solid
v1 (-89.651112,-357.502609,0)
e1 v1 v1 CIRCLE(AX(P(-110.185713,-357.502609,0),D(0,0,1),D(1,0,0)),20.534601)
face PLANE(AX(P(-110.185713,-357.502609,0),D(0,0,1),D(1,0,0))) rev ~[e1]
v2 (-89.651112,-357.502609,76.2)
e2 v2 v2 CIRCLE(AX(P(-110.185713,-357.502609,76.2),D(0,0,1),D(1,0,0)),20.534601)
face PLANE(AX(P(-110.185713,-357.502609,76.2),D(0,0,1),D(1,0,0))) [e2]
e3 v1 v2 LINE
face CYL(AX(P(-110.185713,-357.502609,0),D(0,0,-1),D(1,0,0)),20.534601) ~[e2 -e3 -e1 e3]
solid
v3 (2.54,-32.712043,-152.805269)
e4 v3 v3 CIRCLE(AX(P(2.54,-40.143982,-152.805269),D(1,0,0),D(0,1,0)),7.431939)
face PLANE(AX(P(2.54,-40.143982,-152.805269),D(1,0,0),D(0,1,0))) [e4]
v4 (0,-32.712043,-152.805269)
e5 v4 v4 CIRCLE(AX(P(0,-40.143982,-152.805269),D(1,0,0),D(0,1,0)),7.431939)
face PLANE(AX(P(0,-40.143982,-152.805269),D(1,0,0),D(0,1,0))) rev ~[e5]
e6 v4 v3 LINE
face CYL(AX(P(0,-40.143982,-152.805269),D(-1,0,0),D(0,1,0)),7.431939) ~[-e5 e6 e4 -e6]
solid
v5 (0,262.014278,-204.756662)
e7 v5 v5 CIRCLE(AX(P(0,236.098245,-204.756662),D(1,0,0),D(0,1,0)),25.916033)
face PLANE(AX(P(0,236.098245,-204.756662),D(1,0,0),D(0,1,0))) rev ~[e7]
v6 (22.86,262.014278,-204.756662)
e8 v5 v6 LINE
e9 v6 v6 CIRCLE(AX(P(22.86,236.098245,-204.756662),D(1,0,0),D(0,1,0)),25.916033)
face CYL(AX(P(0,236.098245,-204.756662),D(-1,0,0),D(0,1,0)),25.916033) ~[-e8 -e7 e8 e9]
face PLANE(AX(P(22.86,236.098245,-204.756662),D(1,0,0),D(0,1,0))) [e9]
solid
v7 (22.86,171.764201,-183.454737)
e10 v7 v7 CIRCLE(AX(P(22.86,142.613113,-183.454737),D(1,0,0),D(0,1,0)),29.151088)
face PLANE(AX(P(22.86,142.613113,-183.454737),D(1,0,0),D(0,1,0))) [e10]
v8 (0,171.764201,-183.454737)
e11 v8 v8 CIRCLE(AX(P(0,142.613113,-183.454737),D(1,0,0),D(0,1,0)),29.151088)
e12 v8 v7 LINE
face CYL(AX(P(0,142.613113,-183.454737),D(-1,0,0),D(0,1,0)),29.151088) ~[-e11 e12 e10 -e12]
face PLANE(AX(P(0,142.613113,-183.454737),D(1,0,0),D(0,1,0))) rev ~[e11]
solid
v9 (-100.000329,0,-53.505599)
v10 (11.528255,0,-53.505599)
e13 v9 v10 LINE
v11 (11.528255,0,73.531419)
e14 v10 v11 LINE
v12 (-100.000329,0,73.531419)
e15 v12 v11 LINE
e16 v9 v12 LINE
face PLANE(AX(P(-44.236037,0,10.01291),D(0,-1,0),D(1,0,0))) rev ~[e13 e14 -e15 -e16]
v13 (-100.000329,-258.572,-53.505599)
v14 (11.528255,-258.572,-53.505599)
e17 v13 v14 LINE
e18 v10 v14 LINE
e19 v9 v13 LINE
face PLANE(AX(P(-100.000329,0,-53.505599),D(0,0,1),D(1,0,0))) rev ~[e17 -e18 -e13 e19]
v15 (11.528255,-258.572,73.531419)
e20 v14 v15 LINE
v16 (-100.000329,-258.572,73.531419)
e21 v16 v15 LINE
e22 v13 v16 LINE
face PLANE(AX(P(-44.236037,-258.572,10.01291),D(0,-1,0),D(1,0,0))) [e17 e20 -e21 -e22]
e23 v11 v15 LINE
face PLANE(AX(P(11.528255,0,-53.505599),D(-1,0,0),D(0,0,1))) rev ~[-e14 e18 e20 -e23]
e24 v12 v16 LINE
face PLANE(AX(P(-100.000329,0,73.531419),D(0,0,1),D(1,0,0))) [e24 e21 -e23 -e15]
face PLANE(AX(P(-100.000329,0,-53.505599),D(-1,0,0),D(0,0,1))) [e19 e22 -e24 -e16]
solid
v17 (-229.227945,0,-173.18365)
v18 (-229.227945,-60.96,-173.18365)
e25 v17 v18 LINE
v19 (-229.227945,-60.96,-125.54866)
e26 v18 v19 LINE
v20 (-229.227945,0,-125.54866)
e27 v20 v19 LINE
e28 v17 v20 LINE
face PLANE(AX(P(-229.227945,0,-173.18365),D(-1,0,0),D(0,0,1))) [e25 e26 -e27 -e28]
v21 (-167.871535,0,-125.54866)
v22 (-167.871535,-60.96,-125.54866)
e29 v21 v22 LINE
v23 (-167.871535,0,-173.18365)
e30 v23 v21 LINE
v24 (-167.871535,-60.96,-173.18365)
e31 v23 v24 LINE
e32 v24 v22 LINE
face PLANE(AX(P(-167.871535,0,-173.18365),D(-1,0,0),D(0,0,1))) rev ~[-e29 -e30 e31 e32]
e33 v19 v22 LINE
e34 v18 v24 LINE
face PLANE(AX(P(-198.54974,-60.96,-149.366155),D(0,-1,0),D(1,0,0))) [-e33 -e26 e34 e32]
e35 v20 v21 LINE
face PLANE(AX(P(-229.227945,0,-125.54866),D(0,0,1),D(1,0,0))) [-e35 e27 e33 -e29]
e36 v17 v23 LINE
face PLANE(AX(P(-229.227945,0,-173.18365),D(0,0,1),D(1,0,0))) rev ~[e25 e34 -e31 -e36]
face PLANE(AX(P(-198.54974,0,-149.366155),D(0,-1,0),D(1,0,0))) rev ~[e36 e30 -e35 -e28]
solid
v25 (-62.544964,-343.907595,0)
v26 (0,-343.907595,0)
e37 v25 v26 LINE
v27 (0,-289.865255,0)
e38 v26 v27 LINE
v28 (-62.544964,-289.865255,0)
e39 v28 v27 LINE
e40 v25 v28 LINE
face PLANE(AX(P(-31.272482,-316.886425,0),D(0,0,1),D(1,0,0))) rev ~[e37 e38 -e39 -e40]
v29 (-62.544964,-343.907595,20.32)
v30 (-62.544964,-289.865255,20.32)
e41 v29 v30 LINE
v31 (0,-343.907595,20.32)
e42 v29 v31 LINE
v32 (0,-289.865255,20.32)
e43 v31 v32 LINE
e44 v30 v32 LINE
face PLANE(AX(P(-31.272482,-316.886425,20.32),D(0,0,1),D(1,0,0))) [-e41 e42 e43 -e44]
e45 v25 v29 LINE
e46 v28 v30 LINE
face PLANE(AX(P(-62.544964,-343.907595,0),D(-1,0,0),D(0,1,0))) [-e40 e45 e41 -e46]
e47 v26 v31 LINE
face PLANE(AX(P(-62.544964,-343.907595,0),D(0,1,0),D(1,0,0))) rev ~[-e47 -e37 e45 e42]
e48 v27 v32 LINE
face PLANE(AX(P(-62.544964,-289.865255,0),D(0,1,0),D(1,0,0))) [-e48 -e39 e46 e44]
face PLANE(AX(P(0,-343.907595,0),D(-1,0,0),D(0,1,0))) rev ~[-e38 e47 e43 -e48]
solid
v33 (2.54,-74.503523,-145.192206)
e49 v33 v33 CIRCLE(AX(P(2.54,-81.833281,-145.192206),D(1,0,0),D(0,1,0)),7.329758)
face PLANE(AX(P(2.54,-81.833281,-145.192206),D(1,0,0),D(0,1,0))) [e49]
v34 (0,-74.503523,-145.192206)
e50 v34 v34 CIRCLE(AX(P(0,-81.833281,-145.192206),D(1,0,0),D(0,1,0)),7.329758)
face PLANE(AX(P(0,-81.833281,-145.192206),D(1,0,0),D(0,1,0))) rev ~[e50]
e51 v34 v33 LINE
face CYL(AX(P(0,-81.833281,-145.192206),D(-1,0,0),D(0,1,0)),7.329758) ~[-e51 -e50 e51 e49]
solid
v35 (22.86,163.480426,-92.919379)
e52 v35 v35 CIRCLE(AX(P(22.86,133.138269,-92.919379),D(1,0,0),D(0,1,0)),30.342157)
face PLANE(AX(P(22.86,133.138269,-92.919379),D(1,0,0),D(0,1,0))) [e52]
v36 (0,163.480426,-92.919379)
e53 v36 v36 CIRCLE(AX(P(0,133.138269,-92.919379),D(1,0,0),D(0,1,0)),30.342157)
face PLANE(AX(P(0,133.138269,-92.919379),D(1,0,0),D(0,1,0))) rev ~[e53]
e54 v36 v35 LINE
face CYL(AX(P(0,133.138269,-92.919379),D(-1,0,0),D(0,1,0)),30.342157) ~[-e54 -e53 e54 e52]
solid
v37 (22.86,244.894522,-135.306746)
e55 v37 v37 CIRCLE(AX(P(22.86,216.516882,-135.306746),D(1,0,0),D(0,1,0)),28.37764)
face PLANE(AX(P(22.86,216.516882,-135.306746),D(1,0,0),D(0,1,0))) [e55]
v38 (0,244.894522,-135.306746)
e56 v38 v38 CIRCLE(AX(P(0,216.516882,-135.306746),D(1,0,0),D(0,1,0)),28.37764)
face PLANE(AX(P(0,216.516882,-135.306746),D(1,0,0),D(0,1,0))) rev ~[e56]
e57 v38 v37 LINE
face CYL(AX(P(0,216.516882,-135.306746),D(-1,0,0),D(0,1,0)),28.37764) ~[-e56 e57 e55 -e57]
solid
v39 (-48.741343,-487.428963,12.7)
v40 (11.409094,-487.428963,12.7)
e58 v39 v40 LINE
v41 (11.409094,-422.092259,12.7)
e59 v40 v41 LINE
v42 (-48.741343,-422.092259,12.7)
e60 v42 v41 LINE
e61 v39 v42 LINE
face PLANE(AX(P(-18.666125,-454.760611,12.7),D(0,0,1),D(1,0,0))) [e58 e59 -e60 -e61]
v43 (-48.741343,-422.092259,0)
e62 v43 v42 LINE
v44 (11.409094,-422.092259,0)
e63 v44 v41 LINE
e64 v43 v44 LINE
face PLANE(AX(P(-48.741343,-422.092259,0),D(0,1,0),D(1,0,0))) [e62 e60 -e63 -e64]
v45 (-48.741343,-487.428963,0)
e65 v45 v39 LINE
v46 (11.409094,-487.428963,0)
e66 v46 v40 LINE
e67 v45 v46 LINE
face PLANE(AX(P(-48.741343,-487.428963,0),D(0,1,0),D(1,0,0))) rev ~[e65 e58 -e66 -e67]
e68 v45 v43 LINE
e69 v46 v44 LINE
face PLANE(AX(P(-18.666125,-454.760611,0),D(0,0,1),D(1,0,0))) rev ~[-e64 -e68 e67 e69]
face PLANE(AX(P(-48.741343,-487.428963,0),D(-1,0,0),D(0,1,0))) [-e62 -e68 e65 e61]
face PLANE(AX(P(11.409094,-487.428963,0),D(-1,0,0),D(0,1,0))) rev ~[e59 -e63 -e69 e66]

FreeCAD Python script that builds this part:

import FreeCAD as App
import Part
import Sketcher
Q = App.Units.Quantity

doc = App.newDocument("Part")
params = doc.addObject("Spreadsheet::Sheet", "Params")
for row, (alias, value) in enumerate([
    ("pad1_length", "10.18 in"),
    ("pad2_length", "0.8 in"),
    ("pad3_length", "2.4 in"),
    ("pad4_length", "0.9 in"),
    ("pad5_length", "0.1 in"),
    ("pad6_length", "0.1 in"),
    ("pad7_length", "3 in"),
    ("pad8_length", "0.5 in"),
], start=1):
    params.set(f"A{row}", alias)
    params.set(f"B{row}", "=" + value)
    params.setAlias(f"B{row}", alias)

body = doc.addObject("PartDesign::Body", "Body")

sketch1 = body.newObject("Sketcher::SketchObject", "Sketch")
sketch1.AttachmentSupport = (doc.getObject("XZ_Plane"), [""])
sketch1.MapMode = "FlatFace"
sketch1.addGeometry([
    Part.LineSegment(App.Vector(-100, 74, 0), App.Vector(-100, -54, 0)),
    Part.LineSegment(App.Vector(-100, -54, 0), App.Vector(12, -54, 0)),
    Part.LineSegment(App.Vector(12, -54, 0), App.Vector(12, 74, 0)),
    Part.LineSegment(App.Vector(12, 74, 0), App.Vector(-100, 74, 0)),
], False)
sketch1.addConstraint([
    Sketcher.Constraint("Coincident", 0, 2, 1, 1),
    Sketcher.Constraint("Coincident", 1, 2, 2, 1),
    Sketcher.Constraint("Coincident", 2, 2, 3, 1),
    Sketcher.Constraint("Coincident", 3, 2, 0, 1),
    Sketcher.Constraint("Vertical", 0),
    Sketcher.Constraint("Horizontal", 1),
    Sketcher.Constraint("Vertical", 2),
    Sketcher.Constraint("Horizontal", 3),
    Sketcher.Constraint("DistanceY", 0, 2, -1, 1, Q("53.505599 mm")),
    Sketcher.Constraint("DistanceX", 1, 1, 1, 2, Q("111.528584 mm")),
    Sketcher.Constraint("DistanceY", 0, 2, 0, 1, Q("127.037018 mm")),
    Sketcher.Constraint("DistanceX", 0, 2, -1, 1, Q("100.000329 mm")),
])
pad1 = body.newObject("PartDesign::Pad", "Pad")
pad1.Profile = sketch1
pad1.setExpression("Length", "Params.pad1_length")
body2 = doc.addObject("PartDesign::Body", "Body001")

sketch2 = body2.newObject("Sketcher::SketchObject", "Sketch001")
sketch2.AttachmentSupport = (doc.getObject("XY_Plane001"), [""])
sketch2.MapMode = "FlatFace"
sketch2.addGeometry([
    Part.LineSegment(App.Vector(-63, -290, 0), App.Vector(-63, -344, 0)),
    Part.LineSegment(App.Vector(-63, -344, 0), App.Vector(0, -344, 0)),
    Part.LineSegment(App.Vector(0, -344, 0), App.Vector(0, -290, 0)),
    Part.LineSegment(App.Vector(0, -290, 0), App.Vector(-63, -290, 0)),
], False)
sketch2.addConstraint([
    Sketcher.Constraint("Coincident", 0, 2, 1, 1),
    Sketcher.Constraint("Coincident", 1, 2, 2, 1),
    Sketcher.Constraint("Coincident", 2, 2, 3, 1),
    Sketcher.Constraint("Coincident", 3, 2, 0, 1),
    Sketcher.Constraint("Vertical", 0),
    Sketcher.Constraint("Horizontal", 1),
    Sketcher.Constraint("Vertical", 2),
    Sketcher.Constraint("Horizontal", 3),
    Sketcher.Constraint("PointOnObject", 1, 2, -2),
    Sketcher.Constraint("DistanceX", 1, 1, 1, 2, Q("2.4624002 in")),
    Sketcher.Constraint("DistanceY", 0, 2, 0, 1, Q("54.04234 mm")),
    Sketcher.Constraint("DistanceY", 0, 2, -1, 1, Q("343.907595 mm")),
])
pad2 = body2.newObject("PartDesign::Pad", "Pad001")
pad2.Profile = sketch2
pad2.setExpression("Length", "Params.pad2_length")
body3 = doc.addObject("PartDesign::Body", "Body002")

sketch3 = body3.newObject("Sketcher::SketchObject", "Sketch002")
sketch3.AttachmentSupport = (doc.getObject("XZ_Plane002"), [""])
sketch3.MapMode = "FlatFace"
sketch3.addGeometry([
    Part.LineSegment(App.Vector(-229, -126, 0), App.Vector(-229, -173, 0)),
    Part.LineSegment(App.Vector(-229, -173, 0), App.Vector(-168, -173, 0)),
    Part.LineSegment(App.Vector(-168, -173, 0), App.Vector(-168, -126, 0)),
    Part.LineSegment(App.Vector(-168, -126, 0), App.Vector(-229, -126, 0)),
], False)
sketch3.addConstraint([
    Sketcher.Constraint("Coincident", 0, 2, 1, 1),
    Sketcher.Constraint("Coincident", 1, 2, 2, 1),
    Sketcher.Constraint("Coincident", 2, 2, 3, 1),
    Sketcher.Constraint("Coincident", 3, 2, 0, 1),
    Sketcher.Constraint("Vertical", 0),
    Sketcher.Constraint("Horizontal", 1),
    Sketcher.Constraint("Vertical", 2),
    Sketcher.Constraint("Horizontal", 3),
    Sketcher.Constraint("DistanceX", 1, 1, 1, 2, Q("61.35641 mm")),
    Sketcher.Constraint("DistanceY", 0, 2, 0, 1, Q("47.634989 mm")),
    Sketcher.Constraint("DistanceY", 0, 2, -1, 1, Q("173.18365 mm")),
    Sketcher.Constraint("DistanceX", 0, 2, -1, 1, Q("229.227945 mm")),
])
pad3 = body3.newObject("PartDesign::Pad", "Pad002")
pad3.Profile = sketch3
pad3.setExpression("Length", "Params.pad3_length")
body4 = doc.addObject("PartDesign::Body", "Body003")
body4.AllowCompound = True

sketch4 = body4.newObject("Sketcher::SketchObject", "Sketch003")
sketch4.AttachmentSupport = (doc.getObject("YZ_Plane003"), [""])
sketch4.MapMode = "FlatFace"
sketch4.addGeometry([
    Part.Circle(App.Vector(217, -135, 0), App.Vector(0, 0, 1), 28),
    Part.Circle(App.Vector(236, -205, 0), App.Vector(0, 0, 1), 26),
    Part.Circle(App.Vector(143, -183, 0), App.Vector(0, 0, 1), 29),
    Part.Circle(App.Vector(133, -93, 0), App.Vector(0, 0, 1), 30),
], False)
sketch4.addConstraint([
    Sketcher.Constraint("Diameter", 0, Q("56.75528 mm")),
    Sketcher.Constraint("Diameter", 1, Q("51.832066 mm")),
    Sketcher.Constraint("Diameter", 2, Q("58.302176 mm")),
    Sketcher.Constraint("Diameter", 3, Q("60.684314 mm")),
    Sketcher.Constraint("DistanceY", 1, 3, -1, 1, Q("204.756662 mm")),
    Sketcher.Constraint("DistanceX", -1, 1, 3, 3, Q("133.138269 mm")),
    Sketcher.Constraint("DistanceY", 3, 3, -1, 1, Q("92.919379 mm")),
    Sketcher.Constraint("DistanceX", 2, 3, 0, 3, Q("73.903769 mm")),
    Sketcher.Constraint("DistanceY", 2, 3, 0, 3, Q("48.147991 mm")),
    Sketcher.Constraint("DistanceX", 2, 3, 1, 3, Q("93.485132 mm")),
    Sketcher.Constraint("DistanceX", -1, 1, 0, 3, Q("216.516882 mm")),
    Sketcher.Constraint("DistanceY", 0, 3, -1, 1, Q("135.306746 mm")),
])
pad4 = body4.newObject("PartDesign::Pad", "Pad003")
pad4.Profile = sketch4
pad4.setExpression("Length", "Params.pad4_length")
body5 = doc.addObject("PartDesign::Body", "Body004")

sketch5 = body5.newObject("Sketcher::SketchObject", "Sketch004")
sketch5.AttachmentSupport = (doc.getObject("YZ_Plane004"), [""])
sketch5.MapMode = "FlatFace"
sketch5.addGeometry(Part.Circle(App.Vector(-82, -145, 0), App.Vector(0, 0, 1), 7), False)
sketch5.addConstraint([
    Sketcher.Constraint("Diameter", 0, Q("14.659516 mm")),
    Sketcher.Constraint("DistanceX", 0, 3, -1, 1, Q("81.833281 mm")),
    Sketcher.Constraint("DistanceY", 0, 3, -1, 1, Q("145.192206 mm")),
])
pad5 = body5.newObject("PartDesign::Pad", "Pad004")
pad5.Profile = sketch5
pad5.setExpression("Length", "Params.pad5_length")
body6 = doc.addObject("PartDesign::Body", "Body005")

sketch6 = body6.newObject("Sketcher::SketchObject", "Sketch005")
sketch6.AttachmentSupport = (doc.getObject("YZ_Plane005"), [""])
sketch6.MapMode = "FlatFace"
sketch6.addGeometry(Part.Circle(App.Vector(-40, -153, 0), App.Vector(0, 0, 1), 7), False)
sketch6.addConstraint([
    Sketcher.Constraint("Diameter", 0, Q("14.863878 mm")),
    Sketcher.Constraint("DistanceY", 0, 3, -1, 1, Q("152.805269 mm")),
    Sketcher.Constraint("DistanceX", 0, 3, -1, 1, Q("40.143982 mm")),
])
pad6 = body6.newObject("PartDesign::Pad", "Pad005")
pad6.Profile = sketch6
pad6.setExpression("Length", "Params.pad6_length")
body7 = doc.addObject("PartDesign::Body", "Body006")

sketch7 = body7.newObject("Sketcher::SketchObject", "Sketch006")
sketch7.AttachmentSupport = (doc.getObject("XY_Plane006"), [""])
sketch7.MapMode = "FlatFace"
sketch7.addGeometry(Part.Circle(App.Vector(-110, -358, 0), App.Vector(0, 0, 1), 21), False)
sketch7.addConstraint([
    Sketcher.Constraint("Diameter", 0, Q("41.069202 mm")),
    Sketcher.Constraint("DistanceY", 0, 3, -1, 1, Q("357.502609 mm")),
    Sketcher.Constraint("DistanceX", 0, 3, -1, 1, Q("110.185713 mm")),
])
pad7 = body7.newObject("PartDesign::Pad", "Pad006")
pad7.Profile = sketch7
pad7.setExpression("Length", "Params.pad7_length")
body8 = doc.addObject("PartDesign::Body", "Body007")

sketch8 = body8.newObject("Sketcher::SketchObject", "Sketch007")
sketch8.AttachmentSupport = (doc.getObject("XY_Plane007"), [""])
sketch8.MapMode = "FlatFace"
sketch8.addGeometry([
    Part.LineSegment(App.Vector(-49, -422, 0), App.Vector(-49, -487, 0)),
    Part.LineSegment(App.Vector(-49, -487, 0), App.Vector(11, -487, 0)),
    Part.LineSegment(App.Vector(11, -487, 0), App.Vector(11, -422, 0)),
    Part.LineSegment(App.Vector(11, -422, 0), App.Vector(-49, -422, 0)),
], False)
sketch8.addConstraint([
    Sketcher.Constraint("Coincident", 0, 2, 1, 1),
    Sketcher.Constraint("Coincident", 1, 2, 2, 1),
    Sketcher.Constraint("Coincident", 2, 2, 3, 1),
    Sketcher.Constraint("Coincident", 3, 2, 0, 1),
    Sketcher.Constraint("Vertical", 0),
    Sketcher.Constraint("Horizontal", 1),
    Sketcher.Constraint("Vertical", 2),
    Sketcher.Constraint("Horizontal", 3),
    Sketcher.Constraint("DistanceX", 1, 1, 1, 2, Q("60.150437 mm")),
    Sketcher.Constraint("DistanceY", 0, 2, 0, 1, Q("65.336704 mm")),
    Sketcher.Constraint("DistanceY", 2, 2, -1, 1, Q("422.092259 mm")),
    Sketcher.Constraint("DistanceX", 0, 2, -1, 1, Q("48.741343 mm")),
])
pad8 = body8.newObject("PartDesign::Pad", "Pad007")
pad8.Profile = sketch8
pad8.setExpression("Length", "Params.pad8_length")

doc.recompute()
